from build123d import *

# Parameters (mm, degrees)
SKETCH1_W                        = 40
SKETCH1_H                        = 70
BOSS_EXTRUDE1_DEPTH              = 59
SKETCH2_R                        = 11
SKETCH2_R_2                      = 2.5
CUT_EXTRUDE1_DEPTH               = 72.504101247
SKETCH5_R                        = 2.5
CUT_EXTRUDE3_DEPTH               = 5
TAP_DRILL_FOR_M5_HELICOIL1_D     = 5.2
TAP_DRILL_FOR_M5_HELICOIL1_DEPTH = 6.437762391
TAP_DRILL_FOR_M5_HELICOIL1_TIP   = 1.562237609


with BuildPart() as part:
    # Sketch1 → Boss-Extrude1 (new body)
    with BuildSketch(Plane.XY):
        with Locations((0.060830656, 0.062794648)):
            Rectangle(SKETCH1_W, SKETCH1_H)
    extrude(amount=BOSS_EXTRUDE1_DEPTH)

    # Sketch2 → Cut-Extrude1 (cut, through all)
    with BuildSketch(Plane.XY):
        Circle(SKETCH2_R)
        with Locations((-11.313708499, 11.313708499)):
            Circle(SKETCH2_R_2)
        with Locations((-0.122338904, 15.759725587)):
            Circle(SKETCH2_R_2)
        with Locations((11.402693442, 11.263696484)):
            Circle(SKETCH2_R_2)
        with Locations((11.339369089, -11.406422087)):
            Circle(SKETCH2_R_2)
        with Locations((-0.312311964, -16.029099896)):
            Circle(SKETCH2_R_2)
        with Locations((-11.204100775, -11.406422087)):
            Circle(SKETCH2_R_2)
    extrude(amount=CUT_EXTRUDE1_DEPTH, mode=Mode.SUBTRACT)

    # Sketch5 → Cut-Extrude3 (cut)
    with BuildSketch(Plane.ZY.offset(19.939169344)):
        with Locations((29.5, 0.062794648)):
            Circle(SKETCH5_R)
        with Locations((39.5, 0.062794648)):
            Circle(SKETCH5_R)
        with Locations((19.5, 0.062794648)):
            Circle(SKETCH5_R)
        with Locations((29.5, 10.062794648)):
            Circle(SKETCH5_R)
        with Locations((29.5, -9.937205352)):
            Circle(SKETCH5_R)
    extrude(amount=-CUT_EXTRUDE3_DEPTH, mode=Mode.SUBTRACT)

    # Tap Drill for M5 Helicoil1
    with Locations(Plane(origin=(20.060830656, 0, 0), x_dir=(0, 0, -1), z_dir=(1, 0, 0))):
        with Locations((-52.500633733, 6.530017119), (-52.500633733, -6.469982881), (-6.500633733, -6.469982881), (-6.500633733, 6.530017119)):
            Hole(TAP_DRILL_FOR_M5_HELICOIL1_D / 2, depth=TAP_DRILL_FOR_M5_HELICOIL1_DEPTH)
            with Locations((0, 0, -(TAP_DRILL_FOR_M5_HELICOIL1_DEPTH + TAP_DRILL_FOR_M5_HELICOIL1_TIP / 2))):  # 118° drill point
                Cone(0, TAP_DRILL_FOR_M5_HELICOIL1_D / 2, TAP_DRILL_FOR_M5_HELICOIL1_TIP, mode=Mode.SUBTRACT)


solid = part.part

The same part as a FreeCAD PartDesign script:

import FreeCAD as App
import Part
import Sketcher
from FreeCAD import Vector
Q = App.Units.Quantity


def add_polygon(sketch, points):
    """Adds a closed chain of lines whose ends are joined by coincident constraints."""
    first, n = sketch.GeometryCount, len(points)
    for a, b in zip(points, points[1:] + points[:1]):
        sketch.addGeometry(Part.LineSegment(App.Vector(*a, 0), App.Vector(*b, 0)), False)
    for i in range(n):
        sketch.addConstraint(Sketcher.Constraint("Coincident", first + i, 2, first + (i + 1) % n, 1))

doc = App.newDocument("Part")
body = doc.addObject("PartDesign::Body", "Body")

# Sketch on XY plane
sketch1 = doc.addObject("Sketcher::SketchObject", "Sketch")
body.addObject(sketch1)
sketch1.AttachmentSupport = (doc.XY_Plane, [""])
sketch1.MapMode = "FlatFace"
add_polygon(sketch1, [(-20, 35), (-20, -35), (20, -35), (20, 35)])  # lines 0-3
sketch1.addConstraint(Sketcher.Constraint("Vertical", 0))
sketch1.addConstraint(Sketcher.Constraint("Horizontal", 1))
sketch1.addConstraint(Sketcher.Constraint("Vertical", 2))
sketch1.addConstraint(Sketcher.Constraint("Horizontal", 3))
sketch1.addConstraint(Sketcher.Constraint("DistanceX", 1, 1, 1, 2, Q("40 mm")))
sketch1.addConstraint(Sketcher.Constraint("DistanceY", 0, 2, 0, 1, Q("70 mm")))
sketch1.addConstraint(Sketcher.Constraint("DistanceX", 0, 2, -1, 1, Q("19.939169 mm")))
sketch1.addConstraint(Sketcher.Constraint("DistanceY", 0, 2, -1, 1, Q("34.937205 mm")))
pad1 = doc.addObject("PartDesign::Pad", "Pad")
body.addObject(pad1)
pad1.Profile = sketch1
pad1.Length = 59

# Sketch on XY plane
sketch2 = doc.addObject("Sketcher::SketchObject", "Sketch001")
body.addObject(sketch2)
sketch2.AttachmentSupport = (doc.XY_Plane, [""])
sketch2.MapMode = "FlatFace"
sketch2.addGeometry(Part.Circle(Vector(0, 0, 0), Vector(0, 0, 1), 11), False)
sketch2.addGeometry(Part.Circle(Vector(-11.3, 11.3, 0), Vector(0, 0, 1), 2.5), False)
sketch2.addGeometry(Part.Circle(Vector(-0.1, 15.8, 0), Vector(0, 0, 1), 2.5), False)
sketch2.addGeometry(Part.Circle(Vector(11.4, 11.3, 0), Vector(0, 0, 1), 2.5), False)
sketch2.addGeometry(Part.Circle(Vector(11.3, -11.4, 0), Vector(0, 0, 1), 2.5), False)
sketch2.addGeometry(Part.Circle(Vector(-0.3, -16, 0), Vector(0, 0, 1), 2.5), False)
sketch2.addGeometry(Part.Circle(Vector(-11.2, -11.4, 0), Vector(0, 0, 1), 2.5), False)
sketch2.addConstraint(Sketcher.Constraint("Coincident", 0, 3, -1, 1))
sketch2.addConstraint(Sketcher.Constraint("Equal", 1, 2))
sketch2.addConstraint(Sketcher.Constraint("Equal", 2, 3))
sketch2.addConstraint(Sketcher.Constraint("Equal", 3, 4))
sketch2.addConstraint(Sketcher.Constraint("Equal", 4, 5))
sketch2.addConstraint(Sketcher.Constraint("Equal", 5, 6))
sketch2.addConstraint(Sketcher.Constraint("Horizontal", 4, 3, 6, 3))
sketch2.addConstraint(Sketcher.Constraint("Diameter", 0, Q("22 mm")))
sketch2.addConstraint(Sketcher.Constraint("Diameter", 1, Q("5 mm")))
sketch2.addConstraint(Sketcher.Constraint("DistanceY", 5, 3, -1, 1, Q("16.0291 mm")))
sketch2.addConstraint(Sketcher.Constraint("DistanceX", 6, 3, -1, 1, Q("11.204101 mm")))
sketch2.addConstraint(Sketcher.Constraint("DistanceX", 1, 3, 3, 3, Q("22.716402 mm")))
sketch2.addConstraint(Sketcher.Constraint("DistanceX", 1, 3, -1, 1, Q("11.313708 mm")))
sketch2.addConstraint(Sketcher.Constraint("DistanceY", -1, 1, 1, 3, Q("11.313708 mm")))
sketch2.addConstraint(Sketcher.Constraint("DistanceX", 2, 3, -1, 1, Q("0.122339 mm")))
sketch2.addConstraint(Sketcher.Constraint("DistanceX", -1, 1, 4, 3, Q("11.339369 mm")))
sketch2.addConstraint(Sketcher.Constraint("DistanceX", 5, 3, -1, 1, Q("0.312312 mm")))
sketch2.addConstraint(Sketcher.Constraint("DistanceY", 3, 3, 2, 3, Q("4.496029 mm")))
sketch2.addConstraint(Sketcher.Constraint("DistanceY", 4, 3, 3, 3, Q("22.670119 mm")))
sketch2.addConstraint(Sketcher.Constraint("DistanceY", 4, 3, 1, 3, Q("22.720131 mm")))
pocket1 = doc.addObject("PartDesign::Pocket", "Pocket")
body.addObject(pocket1)
pocket1.Profile = sketch2
pocket1.Type = "ThroughAll"
pocket1.Reversed = True

# Sketch on YZ plane
sketch3 = doc.addObject("Sketcher::SketchObject", "Sketch002")
body.addObject(sketch3)
sketch3.AttachmentSupport = (doc.YZ_Plane, [""])
sketch3.MapMode = "FlatFace"
sketch3.AttachmentOffset = App.Placement(Vector(0, 0, -19.939169), App.Rotation())
sketch3.addGeometry(Part.Circle(Vector(0.1, 29.5, 0), Vector(0, 0, 1), 2.5), False)
sketch3.addGeometry(Part.Circle(Vector(0.1, 39.5, 0), Vector(0, 0, 1), 2.5), False)
sketch3.addGeometry(Part.Circle(Vector(0.1, 19.5, 0), Vector(0, 0, 1), 2.5), False)
sketch3.addGeometry(Part.Circle(Vector(10.1, 29.5, 0), Vector(0, 0, 1), 2.5), False)
sketch3.addGeometry(Part.Circle(Vector(-9.9, 29.5, 0), Vector(0, 0, 1), 2.5), False)
sketch3.addConstraint(Sketcher.Constraint("Equal", 0, 1))
sketch3.addConstraint(Sketcher.Constraint("Equal", 1, 2))
sketch3.addConstraint(Sketcher.Constraint("Equal", 2, 3))
sketch3.addConstraint(Sketcher.Constraint("Equal", 3, 4))
sketch3.addConstraint(Sketcher.Constraint("Horizontal", 0, 3, 3, 3))
sketch3.addConstraint(Sketcher.Constraint("Horizontal", 3, 3, 4, 3))
sketch3.addConstraint(Sketcher.Constraint("Vertical", 0, 3, 1, 3))
sketch3.addConstraint(Sketcher.Constraint("Vertical", 1, 3, 2, 3))
sketch3.addConstraint(Sketcher.Constraint("Diameter", 0, Q("5 mm")))
sketch3.addConstraint(Sketcher.Constraint("DistanceY", 0, 3, 1, 3, Q("10 mm")))
sketch3.addConstraint(Sketcher.Constraint("DistanceY", 2, 3, 0, 3, Q("10 mm")))
sketch3.addConstraint(Sketcher.Constraint("DistanceX", 0, 3, 3, 3, Q("10 mm")))
sketch3.addConstraint(Sketcher.Constraint("DistanceX", 4, 3, 0, 3, Q("10 mm")))
sketch3.addConstraint(Sketcher.Constraint("DistanceY", -1, 1, 0, 3, Q("29.5 mm")))
sketch3.addConstraint(Sketcher.Constraint("DistanceX", -1, 1, 0, 3, Q("0.062795 mm")))
pocket2 = doc.addObject("PartDesign::Pocket", "Pocket001")
body.addObject(pocket2)
pocket2.Profile = sketch3
pocket2.Length = 5
pocket2.Reversed = True

# Sketch on YZ plane
sketch4 = doc.addObject("Sketcher::SketchObject", "Sketch003")
body.addObject(sketch4)
sketch4.AttachmentSupport = (doc.YZ_Plane, [""])
sketch4.MapMode = "FlatFace"
sketch4.AttachmentOffset = App.Placement(Vector(0, 0, 20.060831), App.Rotation())
sketch4.addGeometry(Part.Circle(Vector(6.5, 52.5, 0), Vector(0, 0, 1), 2.6), False)
sketch4.addGeometry(Part.Circle(Vector(-6.5, 52.5, 0), Vector(0, 0, 1), 2.6), False)
sketch4.addGeometry(Part.Circle(Vector(-6.5, 6.5, 0), Vector(0, 0, 1), 2.6), False)
sketch4.addGeometry(Part.Circle(Vector(6.5, 6.5, 0), Vector(0, 0, 1), 2.6), False)
sketch4.addConstraint(Sketcher.Constraint("Equal", 0, 1))
sketch4.addConstraint(Sketcher.Constraint("Equal", 1, 2))
sketch4.addConstraint(Sketcher.Constraint("Equal", 2, 3))
sketch4.addConstraint(Sketcher.Constraint("Horizontal", 0, 3, 1, 3))
sketch4.addConstraint(Sketcher.Constraint("Horizontal", 2, 3, 3, 3))
sketch4.addConstraint(Sketcher.Constraint("Vertical", 1, 3, 2, 3))
sketch4.addConstraint(Sketcher.Constraint("Vertical", 0, 3, 3, 3))
sketch4.addConstraint(Sketcher.Constraint("Diameter", 0, Q("5.2 mm")))
sketch4.addConstraint(Sketcher.Constraint("DistanceX", 1, 3, 0, 3, Q("13 mm")))
sketch4.addConstraint(Sketcher.Constraint("DistanceY", 2, 3, 1, 3, Q("46 mm")))
sketch4.addConstraint(Sketcher.Constraint("DistanceX", -1, 1, 0, 3, Q("6.530017 mm")))
sketch4.addConstraint(Sketcher.Constraint("DistanceY", -1, 1, 0, 3, Q("52.500634 mm")))
doc.recompute()
hole = doc.addObject("PartDesign::Hole", "Hole")
body.addObject(hole)
hole.Profile = sketch4
hole.ThreadType = "None"
hole.Diameter = 5.2
hole.DepthType = "Dimension"
hole.Depth = 6.437762
hole.DrillPoint = "Angled"
hole.DrillPointAngle = 118

doc.recompute()
